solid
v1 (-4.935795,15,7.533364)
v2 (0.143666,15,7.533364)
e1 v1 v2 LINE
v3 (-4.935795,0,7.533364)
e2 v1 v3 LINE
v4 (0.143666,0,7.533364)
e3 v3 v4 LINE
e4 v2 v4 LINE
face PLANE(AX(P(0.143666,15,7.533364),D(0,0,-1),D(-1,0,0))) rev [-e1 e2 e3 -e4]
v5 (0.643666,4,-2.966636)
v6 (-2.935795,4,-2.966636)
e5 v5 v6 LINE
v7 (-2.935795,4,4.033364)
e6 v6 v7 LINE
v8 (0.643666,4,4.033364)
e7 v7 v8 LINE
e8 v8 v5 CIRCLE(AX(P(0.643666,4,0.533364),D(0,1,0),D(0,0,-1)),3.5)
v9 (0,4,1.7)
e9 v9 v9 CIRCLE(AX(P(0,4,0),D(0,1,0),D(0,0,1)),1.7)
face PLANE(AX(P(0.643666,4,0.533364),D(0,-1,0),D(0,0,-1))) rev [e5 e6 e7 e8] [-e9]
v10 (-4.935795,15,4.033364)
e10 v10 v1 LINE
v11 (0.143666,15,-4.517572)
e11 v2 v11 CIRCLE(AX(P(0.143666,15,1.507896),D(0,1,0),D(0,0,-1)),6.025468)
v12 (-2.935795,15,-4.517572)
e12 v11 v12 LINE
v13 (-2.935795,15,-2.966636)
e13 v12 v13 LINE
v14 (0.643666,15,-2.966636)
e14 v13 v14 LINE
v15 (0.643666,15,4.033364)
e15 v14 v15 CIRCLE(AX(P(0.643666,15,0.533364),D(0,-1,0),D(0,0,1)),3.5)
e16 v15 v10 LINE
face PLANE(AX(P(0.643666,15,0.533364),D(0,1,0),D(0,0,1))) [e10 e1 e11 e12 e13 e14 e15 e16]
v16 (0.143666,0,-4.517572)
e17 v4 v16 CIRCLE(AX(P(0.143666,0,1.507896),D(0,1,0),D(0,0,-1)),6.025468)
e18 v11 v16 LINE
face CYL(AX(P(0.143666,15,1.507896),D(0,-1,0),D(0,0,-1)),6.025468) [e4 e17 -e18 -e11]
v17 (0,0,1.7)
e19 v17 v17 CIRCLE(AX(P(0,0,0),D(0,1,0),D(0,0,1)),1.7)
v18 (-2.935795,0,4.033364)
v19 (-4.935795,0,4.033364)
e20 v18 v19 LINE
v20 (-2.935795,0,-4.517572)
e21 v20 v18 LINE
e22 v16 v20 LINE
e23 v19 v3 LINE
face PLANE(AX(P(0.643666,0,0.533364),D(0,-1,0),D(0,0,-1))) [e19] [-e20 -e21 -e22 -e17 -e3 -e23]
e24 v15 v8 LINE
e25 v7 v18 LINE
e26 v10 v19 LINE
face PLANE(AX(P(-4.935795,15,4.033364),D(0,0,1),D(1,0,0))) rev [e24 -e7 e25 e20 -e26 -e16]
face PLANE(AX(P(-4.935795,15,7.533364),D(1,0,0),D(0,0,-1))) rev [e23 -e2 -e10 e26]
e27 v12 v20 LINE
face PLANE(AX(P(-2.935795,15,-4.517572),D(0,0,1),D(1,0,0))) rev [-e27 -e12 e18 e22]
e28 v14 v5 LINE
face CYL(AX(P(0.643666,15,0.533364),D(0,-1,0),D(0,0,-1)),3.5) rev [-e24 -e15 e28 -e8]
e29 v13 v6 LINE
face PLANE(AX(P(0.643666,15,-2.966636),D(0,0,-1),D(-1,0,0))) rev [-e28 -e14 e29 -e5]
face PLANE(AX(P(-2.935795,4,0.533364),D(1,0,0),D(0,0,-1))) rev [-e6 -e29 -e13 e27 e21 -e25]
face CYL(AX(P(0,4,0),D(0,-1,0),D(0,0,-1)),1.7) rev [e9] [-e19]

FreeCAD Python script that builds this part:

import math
import FreeCAD as App
import Part
import Sketcher
from FreeCAD import Vector

doc = App.newDocument("Part")
params = doc.addObject("Spreadsheet::Sheet", "Params")
for row, (alias, value) in enumerate([
    ("sketch1_diameter", "3.4 mm"),
    ("sketch1_radius", "3.5 mm"),
    ("pad1_length", "4 mm"),
    ("sketch2_radius", "3.5 mm"),
    ("sketch2_height", "3.5 mm"),
    ("pad2_length", "15 mm"),
], start=1):
    params.set(f"A{row}", alias)
    params.set(f"B{row}", "=" + value)
    params.setAlias(f"B{row}", alias)

body = doc.addObject("PartDesign::Body", "Body")

sketch1 = body.newObject("Sketcher::SketchObject", "Sketch")
sketch1.AttachmentSupport = (doc.getObject("XZ_Plane"), [""])
sketch1.MapMode = "FlatFace"
sketch1.addGeometry([
    Part.LineSegment(Vector(0.6, -3, 0), Vector(-2.9, -3, 0)),
    Part.LineSegment(Vector(-2.9, -3, 0), Vector(-2.9, 4, 0)),
    Part.LineSegment(Vector(-2.9, 4, 0), Vector(0.6, 4, 0)),
    Part.ArcOfCircle(Part.Circle(Vector(0.6, 0.5, 0), Vector(0, 0, 1), 3.5), math.radians(-90), math.radians(90)),
    Part.Circle(Vector(0, 0, 0), Vector(0, 0, 1), 1.7),
], False)
sketch1.addConstraint([
    Sketcher.Constraint("Coincident", 0, 2, 1, 1),
    Sketcher.Constraint("Coincident", 1, 2, 2, 1),
    Sketcher.Constraint("Tangent", 2, 2, 3, 2),
    Sketcher.Constraint("Tangent", 3, 1, 0, 1),
    Sketcher.Constraint("Horizontal", 0),
    Sketcher.Constraint("Vertical", 1),
    Sketcher.Constraint("Horizontal", 2),
    Sketcher.Constraint("Coincident", 4, 3, -1, 1),
    Sketcher.Constraint("Diameter", 4, 3.4),
    Sketcher.Constraint("Radius", 3, 3.5),
    Sketcher.Constraint("DistanceX", 0, 2, 0, 1, 3.579461),
    Sketcher.Constraint("DistanceX", -1, 1, 3, 3, 0.643666),
    Sketcher.Constraint("DistanceY", -1, 1, 3, 3, 0.533364),
])
sketch1.setExpression("Constraints[8]", "Params.sketch1_diameter")
sketch1.setExpression("Constraints[9]", "Params.sketch1_radius")
pad1 = body.newObject("PartDesign::Pad", "Pad")
pad1.Profile = sketch1
pad1.setExpression("Length", "Params.pad1_length")
pad1.Reversed = True

sketch2 = body.newObject("Sketcher::SketchObject", "Sketch001")
sketch2.AttachmentSupport = (doc.getObject("XZ_Plane"), [""])
sketch2.MapMode = "FlatFace"
sketch2.addGeometry([
    Part.LineSegment(Vector(0.1, -4.5, 0), Vector(-2.9, -4.5, 0)),
    Part.LineSegment(Vector(-2.9, -4.5, 0), Vector(-2.9, -3, 0)),
    Part.LineSegment(Vector(-2.9, -3, 0), Vector(0.6, -3, 0)),
    Part.ArcOfCircle(Part.Circle(Vector(0.6, 0.5, 0), Vector(0, 0, 1), 3.5), math.radians(-90), math.radians(90)),
    Part.LineSegment(Vector(0.6, 4, 0), Vector(-4.9, 4, 0)),
    Part.LineSegment(Vector(-4.9, 4, 0), Vector(-4.9, 7.5, 0)),
    Part.LineSegment(Vector(-4.9, 7.5, 0), Vector(0.1, 7.5, 0)),
    Part.ArcOfCircle(Part.Circle(Vector(0.1, 1.5, 0), Vector(0, 0, 1), 6), math.radians(-90), math.radians(90)),
], False)
sketch2.addConstraint([
    Sketcher.Constraint("Coincident", 0, 2, 1, 1),
    Sketcher.Constraint("Coincident", 1, 2, 2, 1),
    Sketcher.Constraint("Tangent", 2, 2, 3, 1),
    Sketcher.Constraint("Tangent", 3, 2, 4, 1),
    Sketcher.Constraint("Coincident", 4, 2, 5, 1),
    Sketcher.Constraint("Coincident", 5, 2, 6, 1),
    Sketcher.Constraint("Tangent", 6, 2, 7, 2),
    Sketcher.Constraint("Tangent", 7, 1, 0, 1),
    Sketcher.Constraint("Horizontal", 0),
    Sketcher.Constraint("Vertical", 1),
    Sketcher.Constraint("Horizontal", 2),
    Sketcher.Constraint("Horizontal", 4),
    Sketcher.Constraint("Vertical", 5),
    Sketcher.Constraint("Horizontal", 6),
    Sketcher.Constraint("Radius", 3, 3.5),
    Sketcher.Constraint("DistanceY", 5, 1, 5, 2, 3.5),
    Sketcher.Constraint("DistanceX", 4, 2, 1, 2, 2.0),
    Sketcher.Constraint("DistanceX", 7, 3, 3, 3, 0.5),
    Sketcher.Constraint("Radius", 7, 6.025468),
    Sketcher.Constraint("DistanceX", 0, 2, 0, 1, 3.079461),
    Sketcher.Constraint("DistanceY", 0, 2, -1, 1, 4.517572),
    Sketcher.Constraint("DistanceX", -1, 1, 3, 3, 0.643666),
])
sketch2.setExpression("Constraints[14]", "Params.sketch2_radius")
sketch2.setExpression("Constraints[15]", "Params.sketch2_height")
pad2 = body.newObject("PartDesign::Pad", "Pad001")
pad2.Profile = sketch2
pad2.setExpression("Length", "Params.pad2_length")
pad2.Reversed = True

doc.recompute()
